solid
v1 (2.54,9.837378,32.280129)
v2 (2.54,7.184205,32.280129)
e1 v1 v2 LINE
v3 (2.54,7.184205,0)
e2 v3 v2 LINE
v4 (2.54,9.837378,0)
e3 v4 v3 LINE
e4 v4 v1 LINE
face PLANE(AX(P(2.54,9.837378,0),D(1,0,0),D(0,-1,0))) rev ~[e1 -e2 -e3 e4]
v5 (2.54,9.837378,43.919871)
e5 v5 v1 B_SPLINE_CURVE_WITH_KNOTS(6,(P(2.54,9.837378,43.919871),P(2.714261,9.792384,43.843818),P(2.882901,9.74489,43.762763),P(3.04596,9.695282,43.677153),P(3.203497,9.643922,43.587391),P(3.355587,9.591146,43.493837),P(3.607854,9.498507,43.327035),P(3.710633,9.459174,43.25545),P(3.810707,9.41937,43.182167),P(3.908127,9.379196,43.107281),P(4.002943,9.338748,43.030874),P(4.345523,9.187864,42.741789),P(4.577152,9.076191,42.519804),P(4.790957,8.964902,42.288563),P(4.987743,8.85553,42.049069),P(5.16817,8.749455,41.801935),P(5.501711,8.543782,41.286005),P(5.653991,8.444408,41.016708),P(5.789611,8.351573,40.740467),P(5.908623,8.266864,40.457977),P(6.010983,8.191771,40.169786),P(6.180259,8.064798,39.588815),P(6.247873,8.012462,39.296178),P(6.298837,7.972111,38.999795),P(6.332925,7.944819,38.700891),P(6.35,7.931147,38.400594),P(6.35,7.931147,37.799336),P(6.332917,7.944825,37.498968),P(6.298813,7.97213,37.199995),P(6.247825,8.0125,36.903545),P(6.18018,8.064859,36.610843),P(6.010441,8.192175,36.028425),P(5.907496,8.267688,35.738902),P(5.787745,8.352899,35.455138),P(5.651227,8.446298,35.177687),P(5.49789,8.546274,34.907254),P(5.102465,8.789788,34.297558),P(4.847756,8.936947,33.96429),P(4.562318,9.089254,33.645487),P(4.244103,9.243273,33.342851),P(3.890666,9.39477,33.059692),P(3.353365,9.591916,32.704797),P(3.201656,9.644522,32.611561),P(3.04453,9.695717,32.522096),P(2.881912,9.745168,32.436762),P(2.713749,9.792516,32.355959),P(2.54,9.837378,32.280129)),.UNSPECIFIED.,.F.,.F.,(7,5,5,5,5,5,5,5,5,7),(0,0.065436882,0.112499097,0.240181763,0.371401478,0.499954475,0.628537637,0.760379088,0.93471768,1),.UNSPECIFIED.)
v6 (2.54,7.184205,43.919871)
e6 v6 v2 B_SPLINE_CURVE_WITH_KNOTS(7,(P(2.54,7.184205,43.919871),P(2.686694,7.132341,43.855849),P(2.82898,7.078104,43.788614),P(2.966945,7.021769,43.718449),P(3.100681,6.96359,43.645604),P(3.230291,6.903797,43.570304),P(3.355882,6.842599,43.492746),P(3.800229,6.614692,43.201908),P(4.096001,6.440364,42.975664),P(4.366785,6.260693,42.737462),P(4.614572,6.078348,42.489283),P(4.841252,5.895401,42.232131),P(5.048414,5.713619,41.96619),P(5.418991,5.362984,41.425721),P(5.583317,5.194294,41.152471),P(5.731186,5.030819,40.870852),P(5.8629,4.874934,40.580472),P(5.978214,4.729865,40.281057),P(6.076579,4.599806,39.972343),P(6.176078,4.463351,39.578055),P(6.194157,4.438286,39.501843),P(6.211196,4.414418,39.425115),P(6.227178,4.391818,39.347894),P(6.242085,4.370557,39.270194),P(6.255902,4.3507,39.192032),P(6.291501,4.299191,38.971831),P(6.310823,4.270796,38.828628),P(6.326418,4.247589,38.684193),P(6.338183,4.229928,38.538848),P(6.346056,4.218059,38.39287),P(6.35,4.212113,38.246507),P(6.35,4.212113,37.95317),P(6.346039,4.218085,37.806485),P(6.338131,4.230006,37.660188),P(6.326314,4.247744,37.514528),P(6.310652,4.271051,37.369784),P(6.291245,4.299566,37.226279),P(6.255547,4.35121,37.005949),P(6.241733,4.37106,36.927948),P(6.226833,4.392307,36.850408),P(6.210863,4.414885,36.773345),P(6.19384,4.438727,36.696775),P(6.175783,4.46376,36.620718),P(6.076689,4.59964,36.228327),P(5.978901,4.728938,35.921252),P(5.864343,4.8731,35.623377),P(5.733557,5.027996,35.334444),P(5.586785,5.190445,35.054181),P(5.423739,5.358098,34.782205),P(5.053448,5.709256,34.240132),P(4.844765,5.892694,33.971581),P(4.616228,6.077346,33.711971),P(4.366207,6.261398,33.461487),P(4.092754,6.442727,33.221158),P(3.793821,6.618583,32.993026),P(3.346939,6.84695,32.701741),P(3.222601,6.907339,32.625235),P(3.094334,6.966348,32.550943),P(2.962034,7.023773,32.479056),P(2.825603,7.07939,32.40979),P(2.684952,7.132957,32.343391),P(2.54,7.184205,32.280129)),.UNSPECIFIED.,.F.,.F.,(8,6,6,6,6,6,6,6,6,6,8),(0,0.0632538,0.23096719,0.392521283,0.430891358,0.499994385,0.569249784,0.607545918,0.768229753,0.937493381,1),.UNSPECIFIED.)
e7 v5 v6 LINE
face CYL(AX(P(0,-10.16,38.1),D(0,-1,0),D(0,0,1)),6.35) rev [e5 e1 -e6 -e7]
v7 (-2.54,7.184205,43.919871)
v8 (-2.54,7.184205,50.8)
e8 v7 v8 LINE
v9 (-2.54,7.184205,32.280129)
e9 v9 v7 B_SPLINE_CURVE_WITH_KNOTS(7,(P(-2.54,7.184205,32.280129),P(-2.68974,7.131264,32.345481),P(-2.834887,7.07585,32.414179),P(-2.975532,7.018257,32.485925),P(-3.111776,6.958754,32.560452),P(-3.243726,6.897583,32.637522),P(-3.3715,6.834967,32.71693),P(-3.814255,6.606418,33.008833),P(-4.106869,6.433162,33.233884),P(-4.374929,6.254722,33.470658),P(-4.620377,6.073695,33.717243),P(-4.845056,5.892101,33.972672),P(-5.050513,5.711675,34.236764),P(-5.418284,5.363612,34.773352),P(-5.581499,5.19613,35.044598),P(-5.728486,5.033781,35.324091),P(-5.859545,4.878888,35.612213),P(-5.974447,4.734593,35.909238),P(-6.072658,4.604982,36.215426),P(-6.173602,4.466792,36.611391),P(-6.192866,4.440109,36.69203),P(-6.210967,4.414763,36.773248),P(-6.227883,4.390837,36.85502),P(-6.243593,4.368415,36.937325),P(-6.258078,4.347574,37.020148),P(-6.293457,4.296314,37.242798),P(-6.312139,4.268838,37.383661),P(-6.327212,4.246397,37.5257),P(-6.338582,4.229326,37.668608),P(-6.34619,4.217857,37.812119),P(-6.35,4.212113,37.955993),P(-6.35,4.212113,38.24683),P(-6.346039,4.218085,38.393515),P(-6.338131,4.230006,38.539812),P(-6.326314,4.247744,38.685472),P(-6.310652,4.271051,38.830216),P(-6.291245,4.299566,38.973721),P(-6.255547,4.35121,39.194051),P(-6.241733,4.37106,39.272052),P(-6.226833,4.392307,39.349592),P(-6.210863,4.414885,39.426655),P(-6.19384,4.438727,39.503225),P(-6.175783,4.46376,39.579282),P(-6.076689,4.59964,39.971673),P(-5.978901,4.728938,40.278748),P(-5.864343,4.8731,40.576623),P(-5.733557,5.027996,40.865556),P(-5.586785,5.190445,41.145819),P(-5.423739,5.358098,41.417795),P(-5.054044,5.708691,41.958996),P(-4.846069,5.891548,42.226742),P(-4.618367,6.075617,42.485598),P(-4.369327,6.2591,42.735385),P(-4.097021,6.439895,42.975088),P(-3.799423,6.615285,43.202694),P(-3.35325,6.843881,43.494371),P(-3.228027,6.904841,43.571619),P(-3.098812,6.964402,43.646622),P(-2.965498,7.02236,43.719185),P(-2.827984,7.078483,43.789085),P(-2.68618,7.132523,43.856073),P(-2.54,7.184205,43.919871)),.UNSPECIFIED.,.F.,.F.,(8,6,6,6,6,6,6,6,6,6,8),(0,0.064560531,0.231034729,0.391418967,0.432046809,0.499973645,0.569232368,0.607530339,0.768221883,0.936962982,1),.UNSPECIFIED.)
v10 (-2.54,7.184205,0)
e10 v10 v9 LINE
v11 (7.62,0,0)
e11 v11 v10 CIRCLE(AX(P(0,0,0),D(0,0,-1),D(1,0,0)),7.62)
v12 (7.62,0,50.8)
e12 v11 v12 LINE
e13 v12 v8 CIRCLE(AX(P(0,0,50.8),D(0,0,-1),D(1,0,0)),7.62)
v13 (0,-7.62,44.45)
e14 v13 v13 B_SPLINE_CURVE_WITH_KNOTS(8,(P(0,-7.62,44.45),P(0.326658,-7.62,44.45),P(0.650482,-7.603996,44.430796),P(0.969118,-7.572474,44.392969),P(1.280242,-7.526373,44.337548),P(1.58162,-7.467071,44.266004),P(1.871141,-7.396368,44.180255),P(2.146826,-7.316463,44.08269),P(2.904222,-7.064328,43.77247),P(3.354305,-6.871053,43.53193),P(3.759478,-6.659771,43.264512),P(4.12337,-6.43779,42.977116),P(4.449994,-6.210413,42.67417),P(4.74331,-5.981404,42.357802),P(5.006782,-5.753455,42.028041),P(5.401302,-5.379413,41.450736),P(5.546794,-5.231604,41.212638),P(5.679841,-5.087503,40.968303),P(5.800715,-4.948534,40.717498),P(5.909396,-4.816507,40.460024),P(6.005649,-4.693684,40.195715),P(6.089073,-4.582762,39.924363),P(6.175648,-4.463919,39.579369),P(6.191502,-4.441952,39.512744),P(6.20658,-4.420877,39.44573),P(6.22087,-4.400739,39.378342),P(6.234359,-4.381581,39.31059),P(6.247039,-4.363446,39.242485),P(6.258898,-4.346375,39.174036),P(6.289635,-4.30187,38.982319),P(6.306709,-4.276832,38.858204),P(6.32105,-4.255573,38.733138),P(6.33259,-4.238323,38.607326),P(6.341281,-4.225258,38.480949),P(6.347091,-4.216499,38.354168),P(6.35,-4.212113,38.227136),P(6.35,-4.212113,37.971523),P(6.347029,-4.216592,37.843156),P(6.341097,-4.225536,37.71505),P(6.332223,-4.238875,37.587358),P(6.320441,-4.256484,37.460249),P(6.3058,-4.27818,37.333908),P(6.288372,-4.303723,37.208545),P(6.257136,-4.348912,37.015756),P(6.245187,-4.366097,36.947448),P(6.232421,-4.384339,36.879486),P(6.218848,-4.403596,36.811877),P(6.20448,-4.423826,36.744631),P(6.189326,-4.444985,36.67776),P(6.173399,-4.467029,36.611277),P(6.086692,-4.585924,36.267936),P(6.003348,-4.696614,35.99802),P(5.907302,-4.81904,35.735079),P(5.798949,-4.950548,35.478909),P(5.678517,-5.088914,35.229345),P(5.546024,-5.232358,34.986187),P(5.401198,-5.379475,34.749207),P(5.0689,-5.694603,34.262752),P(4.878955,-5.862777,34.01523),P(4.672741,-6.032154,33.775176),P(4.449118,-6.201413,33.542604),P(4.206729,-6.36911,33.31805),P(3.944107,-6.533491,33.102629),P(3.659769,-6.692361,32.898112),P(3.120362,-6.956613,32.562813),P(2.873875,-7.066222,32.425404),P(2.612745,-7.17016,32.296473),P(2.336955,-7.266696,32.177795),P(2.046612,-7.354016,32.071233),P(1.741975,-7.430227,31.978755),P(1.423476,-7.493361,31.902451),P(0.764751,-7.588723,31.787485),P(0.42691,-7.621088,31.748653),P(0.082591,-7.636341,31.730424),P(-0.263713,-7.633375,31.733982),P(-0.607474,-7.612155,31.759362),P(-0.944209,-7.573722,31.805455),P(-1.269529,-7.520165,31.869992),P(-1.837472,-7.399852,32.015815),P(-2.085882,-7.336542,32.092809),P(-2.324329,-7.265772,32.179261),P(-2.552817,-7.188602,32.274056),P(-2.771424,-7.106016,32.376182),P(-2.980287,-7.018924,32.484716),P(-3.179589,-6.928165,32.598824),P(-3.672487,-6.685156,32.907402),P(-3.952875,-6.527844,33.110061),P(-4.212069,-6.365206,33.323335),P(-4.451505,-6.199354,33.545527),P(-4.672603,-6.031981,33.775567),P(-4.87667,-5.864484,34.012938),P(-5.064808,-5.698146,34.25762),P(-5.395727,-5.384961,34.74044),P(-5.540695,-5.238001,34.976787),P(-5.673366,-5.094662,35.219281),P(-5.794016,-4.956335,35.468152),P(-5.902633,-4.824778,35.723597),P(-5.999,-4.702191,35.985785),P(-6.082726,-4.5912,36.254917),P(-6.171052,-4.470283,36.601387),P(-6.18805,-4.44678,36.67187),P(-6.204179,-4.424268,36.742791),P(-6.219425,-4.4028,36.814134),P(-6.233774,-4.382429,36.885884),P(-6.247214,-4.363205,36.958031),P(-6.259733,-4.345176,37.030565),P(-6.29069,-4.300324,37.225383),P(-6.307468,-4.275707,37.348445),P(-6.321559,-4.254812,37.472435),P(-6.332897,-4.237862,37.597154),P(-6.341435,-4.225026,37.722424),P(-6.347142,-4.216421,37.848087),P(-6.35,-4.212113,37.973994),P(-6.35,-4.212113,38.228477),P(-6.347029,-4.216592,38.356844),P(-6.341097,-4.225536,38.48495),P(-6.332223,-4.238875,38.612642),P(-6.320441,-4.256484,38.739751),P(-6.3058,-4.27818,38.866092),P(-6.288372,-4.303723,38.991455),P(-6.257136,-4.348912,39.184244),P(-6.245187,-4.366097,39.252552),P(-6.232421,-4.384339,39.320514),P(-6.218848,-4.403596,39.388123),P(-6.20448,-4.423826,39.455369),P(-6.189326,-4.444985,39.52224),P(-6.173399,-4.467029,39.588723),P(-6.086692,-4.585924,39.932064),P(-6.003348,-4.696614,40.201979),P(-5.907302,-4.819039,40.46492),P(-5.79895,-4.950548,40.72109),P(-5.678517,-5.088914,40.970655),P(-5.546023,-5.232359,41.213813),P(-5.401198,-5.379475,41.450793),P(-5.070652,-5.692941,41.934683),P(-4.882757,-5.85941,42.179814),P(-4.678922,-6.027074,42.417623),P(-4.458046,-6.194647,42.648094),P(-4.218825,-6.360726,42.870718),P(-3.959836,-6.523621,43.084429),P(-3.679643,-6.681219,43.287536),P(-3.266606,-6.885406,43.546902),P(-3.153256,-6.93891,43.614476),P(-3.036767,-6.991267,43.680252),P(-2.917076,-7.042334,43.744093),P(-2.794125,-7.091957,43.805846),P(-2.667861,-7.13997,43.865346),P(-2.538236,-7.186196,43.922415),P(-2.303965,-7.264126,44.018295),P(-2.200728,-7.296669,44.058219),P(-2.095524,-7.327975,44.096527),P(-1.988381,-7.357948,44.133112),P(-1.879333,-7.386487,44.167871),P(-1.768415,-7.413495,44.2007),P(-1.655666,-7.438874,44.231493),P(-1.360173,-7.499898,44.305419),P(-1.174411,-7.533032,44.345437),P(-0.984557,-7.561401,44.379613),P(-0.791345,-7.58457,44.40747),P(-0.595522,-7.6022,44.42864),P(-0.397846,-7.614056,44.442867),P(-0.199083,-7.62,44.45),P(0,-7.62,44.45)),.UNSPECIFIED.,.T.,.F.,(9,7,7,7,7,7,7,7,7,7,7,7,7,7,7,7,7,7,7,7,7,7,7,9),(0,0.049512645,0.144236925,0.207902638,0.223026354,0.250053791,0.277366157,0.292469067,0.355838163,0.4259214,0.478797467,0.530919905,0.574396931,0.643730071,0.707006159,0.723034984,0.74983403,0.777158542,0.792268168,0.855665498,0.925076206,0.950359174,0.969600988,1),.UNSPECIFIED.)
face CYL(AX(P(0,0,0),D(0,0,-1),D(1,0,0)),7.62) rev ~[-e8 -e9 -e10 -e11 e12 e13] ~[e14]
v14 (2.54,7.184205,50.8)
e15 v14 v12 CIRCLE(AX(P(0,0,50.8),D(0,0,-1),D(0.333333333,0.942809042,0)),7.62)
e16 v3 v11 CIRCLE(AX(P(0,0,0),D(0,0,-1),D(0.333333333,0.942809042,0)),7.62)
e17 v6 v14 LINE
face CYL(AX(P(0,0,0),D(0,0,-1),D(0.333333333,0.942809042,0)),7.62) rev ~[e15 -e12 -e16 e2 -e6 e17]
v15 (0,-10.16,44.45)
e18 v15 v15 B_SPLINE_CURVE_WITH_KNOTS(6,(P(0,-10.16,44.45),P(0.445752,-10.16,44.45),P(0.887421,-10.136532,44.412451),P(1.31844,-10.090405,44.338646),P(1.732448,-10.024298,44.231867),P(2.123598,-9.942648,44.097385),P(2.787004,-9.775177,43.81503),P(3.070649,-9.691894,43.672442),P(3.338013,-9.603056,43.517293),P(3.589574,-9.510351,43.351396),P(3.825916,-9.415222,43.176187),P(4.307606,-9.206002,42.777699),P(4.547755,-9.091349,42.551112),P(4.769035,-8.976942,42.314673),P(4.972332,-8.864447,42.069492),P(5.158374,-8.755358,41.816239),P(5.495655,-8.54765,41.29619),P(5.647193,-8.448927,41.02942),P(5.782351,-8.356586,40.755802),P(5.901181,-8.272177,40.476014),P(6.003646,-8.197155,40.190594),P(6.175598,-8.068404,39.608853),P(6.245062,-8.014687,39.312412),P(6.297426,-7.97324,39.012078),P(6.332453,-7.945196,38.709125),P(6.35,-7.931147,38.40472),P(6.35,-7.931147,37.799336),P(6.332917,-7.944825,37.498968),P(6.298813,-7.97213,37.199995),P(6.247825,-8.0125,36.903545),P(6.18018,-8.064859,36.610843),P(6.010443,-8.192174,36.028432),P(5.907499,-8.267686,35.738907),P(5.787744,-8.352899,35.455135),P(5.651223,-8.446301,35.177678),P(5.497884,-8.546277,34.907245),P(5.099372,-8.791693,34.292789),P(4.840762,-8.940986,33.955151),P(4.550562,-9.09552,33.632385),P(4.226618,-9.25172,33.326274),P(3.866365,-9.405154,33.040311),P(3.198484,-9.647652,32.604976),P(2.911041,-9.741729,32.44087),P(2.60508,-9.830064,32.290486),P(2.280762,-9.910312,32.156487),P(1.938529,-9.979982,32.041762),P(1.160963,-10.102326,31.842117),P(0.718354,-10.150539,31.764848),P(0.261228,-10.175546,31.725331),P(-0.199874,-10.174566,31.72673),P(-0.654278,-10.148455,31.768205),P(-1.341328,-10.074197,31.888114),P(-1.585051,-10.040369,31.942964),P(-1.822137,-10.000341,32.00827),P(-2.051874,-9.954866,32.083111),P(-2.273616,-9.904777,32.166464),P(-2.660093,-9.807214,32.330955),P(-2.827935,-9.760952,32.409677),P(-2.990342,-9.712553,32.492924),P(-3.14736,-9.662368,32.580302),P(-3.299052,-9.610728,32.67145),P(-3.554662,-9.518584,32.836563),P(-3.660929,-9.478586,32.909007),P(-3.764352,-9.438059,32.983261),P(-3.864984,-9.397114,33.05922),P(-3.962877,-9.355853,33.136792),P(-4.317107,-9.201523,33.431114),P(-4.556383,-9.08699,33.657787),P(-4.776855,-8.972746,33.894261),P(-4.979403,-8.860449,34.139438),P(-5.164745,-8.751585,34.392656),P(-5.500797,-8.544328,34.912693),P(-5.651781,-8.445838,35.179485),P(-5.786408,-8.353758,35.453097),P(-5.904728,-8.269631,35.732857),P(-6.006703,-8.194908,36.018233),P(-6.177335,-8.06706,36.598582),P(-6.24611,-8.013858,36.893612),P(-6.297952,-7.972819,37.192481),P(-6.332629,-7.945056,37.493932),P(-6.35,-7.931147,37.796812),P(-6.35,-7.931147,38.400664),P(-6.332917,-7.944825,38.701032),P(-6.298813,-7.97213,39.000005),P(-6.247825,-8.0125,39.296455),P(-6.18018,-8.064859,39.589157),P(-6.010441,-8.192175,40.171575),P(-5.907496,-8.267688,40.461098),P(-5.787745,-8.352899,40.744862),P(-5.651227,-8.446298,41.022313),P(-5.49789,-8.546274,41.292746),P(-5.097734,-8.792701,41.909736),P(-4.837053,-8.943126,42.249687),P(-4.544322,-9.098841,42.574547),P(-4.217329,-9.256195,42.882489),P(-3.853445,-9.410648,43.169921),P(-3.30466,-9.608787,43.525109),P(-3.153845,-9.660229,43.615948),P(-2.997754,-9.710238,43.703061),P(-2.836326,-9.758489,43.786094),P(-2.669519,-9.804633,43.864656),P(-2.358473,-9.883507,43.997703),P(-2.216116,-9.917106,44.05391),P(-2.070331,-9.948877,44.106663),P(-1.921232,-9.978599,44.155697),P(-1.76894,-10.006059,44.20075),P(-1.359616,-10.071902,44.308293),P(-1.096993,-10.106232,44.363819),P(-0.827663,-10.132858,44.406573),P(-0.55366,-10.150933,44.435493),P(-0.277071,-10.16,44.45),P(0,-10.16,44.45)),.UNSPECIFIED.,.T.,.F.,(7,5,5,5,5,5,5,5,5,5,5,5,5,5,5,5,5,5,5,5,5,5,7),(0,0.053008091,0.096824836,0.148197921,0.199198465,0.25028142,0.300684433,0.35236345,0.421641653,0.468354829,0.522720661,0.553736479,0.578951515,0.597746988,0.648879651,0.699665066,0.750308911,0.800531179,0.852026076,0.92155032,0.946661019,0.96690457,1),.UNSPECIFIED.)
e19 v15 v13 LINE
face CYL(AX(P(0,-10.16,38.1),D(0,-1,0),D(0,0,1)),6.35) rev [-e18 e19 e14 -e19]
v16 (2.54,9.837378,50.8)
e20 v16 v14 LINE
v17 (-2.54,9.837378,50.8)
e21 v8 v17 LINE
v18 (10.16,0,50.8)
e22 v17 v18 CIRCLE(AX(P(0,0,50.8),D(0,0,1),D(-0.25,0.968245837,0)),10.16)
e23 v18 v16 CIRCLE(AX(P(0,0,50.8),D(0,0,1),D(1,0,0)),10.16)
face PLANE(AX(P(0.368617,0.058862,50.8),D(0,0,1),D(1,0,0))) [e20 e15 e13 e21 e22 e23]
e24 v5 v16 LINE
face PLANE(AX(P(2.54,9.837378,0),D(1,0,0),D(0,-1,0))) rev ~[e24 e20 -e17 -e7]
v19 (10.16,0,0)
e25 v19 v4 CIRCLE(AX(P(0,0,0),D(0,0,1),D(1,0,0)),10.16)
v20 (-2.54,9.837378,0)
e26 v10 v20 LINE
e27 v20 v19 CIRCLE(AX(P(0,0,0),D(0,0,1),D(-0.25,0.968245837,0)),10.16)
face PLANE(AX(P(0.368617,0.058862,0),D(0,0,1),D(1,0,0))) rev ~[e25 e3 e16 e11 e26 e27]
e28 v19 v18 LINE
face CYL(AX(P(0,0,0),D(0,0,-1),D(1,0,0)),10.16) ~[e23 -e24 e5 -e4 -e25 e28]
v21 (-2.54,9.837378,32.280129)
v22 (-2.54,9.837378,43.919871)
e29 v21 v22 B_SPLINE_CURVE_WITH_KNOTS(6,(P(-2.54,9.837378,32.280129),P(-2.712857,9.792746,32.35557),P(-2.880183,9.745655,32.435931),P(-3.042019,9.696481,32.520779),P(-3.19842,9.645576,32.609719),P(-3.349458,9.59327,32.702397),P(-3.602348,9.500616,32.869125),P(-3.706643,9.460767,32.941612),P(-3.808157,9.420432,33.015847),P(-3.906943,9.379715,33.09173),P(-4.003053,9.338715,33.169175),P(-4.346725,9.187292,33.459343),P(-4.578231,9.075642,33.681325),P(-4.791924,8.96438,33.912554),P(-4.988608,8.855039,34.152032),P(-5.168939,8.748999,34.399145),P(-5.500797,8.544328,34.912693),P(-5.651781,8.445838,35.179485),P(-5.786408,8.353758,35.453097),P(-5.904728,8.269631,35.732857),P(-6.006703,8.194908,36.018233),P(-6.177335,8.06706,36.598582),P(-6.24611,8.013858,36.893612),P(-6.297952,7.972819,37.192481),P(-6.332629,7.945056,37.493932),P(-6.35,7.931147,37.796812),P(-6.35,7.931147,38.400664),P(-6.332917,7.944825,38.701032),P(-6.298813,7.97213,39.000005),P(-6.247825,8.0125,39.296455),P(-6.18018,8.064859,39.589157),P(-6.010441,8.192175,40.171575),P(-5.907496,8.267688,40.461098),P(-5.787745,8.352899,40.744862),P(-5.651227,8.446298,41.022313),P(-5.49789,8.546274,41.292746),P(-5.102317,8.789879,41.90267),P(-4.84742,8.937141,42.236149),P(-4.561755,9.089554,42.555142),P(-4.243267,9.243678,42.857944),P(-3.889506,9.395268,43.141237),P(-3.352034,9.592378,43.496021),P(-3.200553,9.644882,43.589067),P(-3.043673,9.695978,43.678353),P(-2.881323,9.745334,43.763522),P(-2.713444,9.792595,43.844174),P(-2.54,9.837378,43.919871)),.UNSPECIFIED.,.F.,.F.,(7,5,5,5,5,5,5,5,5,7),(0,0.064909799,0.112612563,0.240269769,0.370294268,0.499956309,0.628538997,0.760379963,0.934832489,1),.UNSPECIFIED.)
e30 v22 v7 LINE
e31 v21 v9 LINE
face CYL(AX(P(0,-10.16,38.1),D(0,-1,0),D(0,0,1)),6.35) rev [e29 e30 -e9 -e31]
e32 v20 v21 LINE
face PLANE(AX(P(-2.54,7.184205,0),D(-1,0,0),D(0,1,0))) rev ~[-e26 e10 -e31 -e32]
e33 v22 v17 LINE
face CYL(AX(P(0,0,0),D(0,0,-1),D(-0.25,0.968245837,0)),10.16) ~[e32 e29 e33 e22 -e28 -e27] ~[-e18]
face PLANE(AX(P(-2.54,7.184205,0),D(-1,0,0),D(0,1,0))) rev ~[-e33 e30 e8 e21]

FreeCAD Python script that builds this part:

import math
import FreeCAD as App
import Part
import Sketcher

V = App.Vector
Q = App.Units.Quantity

doc = App.newDocument("Part")
body = doc.addObject("PartDesign::Body", "Body")

# Sketch on XY plane
sketch1 = body.newObject("Sketcher::SketchObject", "Sketch")
sketch1.AttachmentSupport = (doc.getObject("XY_Plane"), [""])
sketch1.MapMode = "FlatFace"
sketch1.addGeometry([
    Part.LineSegment(V(-2.5, 7.2, 0), V(-2.5, 9.8, 0)),  # 0
    Part.ArcOfCircle(Part.Circle(V(0, 0, 0), V(0, 0, 1), 10.2), math.radians(104), math.radians(360)),  # 1
    Part.ArcOfCircle(Part.Circle(V(0, 0, 0), V(0, 0, 1), 10.2), math.radians(0), math.radians(76)),  # 2
    Part.LineSegment(V(2.5, 9.8, 0), V(2.5, 7.2, 0)),  # 3
    Part.ArcOfCircle(Part.Circle(V(0, 0, 0), V(0, 0, 1), 7.6), math.radians(0), math.radians(71)),  # 4
    Part.ArcOfCircle(Part.Circle(V(0, 0, 0), V(0, 0, 1), 7.6), math.radians(109), math.radians(360)),  # 5
], False)
sketch1.addConstraint([
    Sketcher.Constraint("Coincident", 0, 2, 1, 1),
    Sketcher.Constraint("Tangent", 1, 2, 2, 1),
    Sketcher.Constraint("Coincident", 2, 2, 3, 1),
    Sketcher.Constraint("Coincident", 3, 2, 4, 2),
    Sketcher.Constraint("Tangent", 4, 1, 5, 2),
    Sketcher.Constraint("Coincident", 5, 1, 0, 1),
    Sketcher.Constraint("Vertical", 0),
    Sketcher.Constraint("Vertical", 3),
    Sketcher.Constraint("Coincident", 1, 3, -1, 1),
    Sketcher.Constraint("Coincident", 4, 3, -1, 1),
    Sketcher.Constraint("Equal", 1, 2),
    Sketcher.Constraint("Equal", 4, 5),
    Sketcher.Constraint("PointOnObject", 1, 2, -1),
    Sketcher.Constraint("PointOnObject", 4, 1, -1),
    Sketcher.Constraint("Horizontal", 0, 2, 2, 2),
    Sketcher.Constraint("Radius", 1, Q("0.4 in")),
    Sketcher.Constraint("Radius", 4, Q("0.3 in")),
    Sketcher.Constraint("DistanceX", 0, 2, -1, 1, Q("0.1 in")),
])
pad1 = body.newObject("PartDesign::Pad", "Pad")
pad1.Profile = sketch1
pad1.Length = Q("2 in")

# Sketch on XZ plane
sketch2 = body.newObject("Sketcher::SketchObject", "Sketch001")
sketch2.AttachmentSupport = (doc.getObject("XZ_Plane"), [""])
sketch2.MapMode = "FlatFace"
sketch2.AttachmentOffset = App.Placement(V(0, 0, 0.4 * 25.4), App.Rotation())
sketch2.addGeometry(Part.Circle(V(0, 38, 0), V(0, 0, 1), 6), False)
sketch2.addConstraint([
    Sketcher.Constraint("PointOnObject", 0, 3, -2),
    Sketcher.Constraint("Diameter", 0, Q("0.5 in")),
    Sketcher.Constraint("DistanceY", -1, 1, 0, 3, Q("1.5 in")),
])
pocket1 = body.newObject("PartDesign::Pocket", "Pocket")
pocket1.Profile = sketch2
pocket1.Length = 19.997379

doc.recompute()
